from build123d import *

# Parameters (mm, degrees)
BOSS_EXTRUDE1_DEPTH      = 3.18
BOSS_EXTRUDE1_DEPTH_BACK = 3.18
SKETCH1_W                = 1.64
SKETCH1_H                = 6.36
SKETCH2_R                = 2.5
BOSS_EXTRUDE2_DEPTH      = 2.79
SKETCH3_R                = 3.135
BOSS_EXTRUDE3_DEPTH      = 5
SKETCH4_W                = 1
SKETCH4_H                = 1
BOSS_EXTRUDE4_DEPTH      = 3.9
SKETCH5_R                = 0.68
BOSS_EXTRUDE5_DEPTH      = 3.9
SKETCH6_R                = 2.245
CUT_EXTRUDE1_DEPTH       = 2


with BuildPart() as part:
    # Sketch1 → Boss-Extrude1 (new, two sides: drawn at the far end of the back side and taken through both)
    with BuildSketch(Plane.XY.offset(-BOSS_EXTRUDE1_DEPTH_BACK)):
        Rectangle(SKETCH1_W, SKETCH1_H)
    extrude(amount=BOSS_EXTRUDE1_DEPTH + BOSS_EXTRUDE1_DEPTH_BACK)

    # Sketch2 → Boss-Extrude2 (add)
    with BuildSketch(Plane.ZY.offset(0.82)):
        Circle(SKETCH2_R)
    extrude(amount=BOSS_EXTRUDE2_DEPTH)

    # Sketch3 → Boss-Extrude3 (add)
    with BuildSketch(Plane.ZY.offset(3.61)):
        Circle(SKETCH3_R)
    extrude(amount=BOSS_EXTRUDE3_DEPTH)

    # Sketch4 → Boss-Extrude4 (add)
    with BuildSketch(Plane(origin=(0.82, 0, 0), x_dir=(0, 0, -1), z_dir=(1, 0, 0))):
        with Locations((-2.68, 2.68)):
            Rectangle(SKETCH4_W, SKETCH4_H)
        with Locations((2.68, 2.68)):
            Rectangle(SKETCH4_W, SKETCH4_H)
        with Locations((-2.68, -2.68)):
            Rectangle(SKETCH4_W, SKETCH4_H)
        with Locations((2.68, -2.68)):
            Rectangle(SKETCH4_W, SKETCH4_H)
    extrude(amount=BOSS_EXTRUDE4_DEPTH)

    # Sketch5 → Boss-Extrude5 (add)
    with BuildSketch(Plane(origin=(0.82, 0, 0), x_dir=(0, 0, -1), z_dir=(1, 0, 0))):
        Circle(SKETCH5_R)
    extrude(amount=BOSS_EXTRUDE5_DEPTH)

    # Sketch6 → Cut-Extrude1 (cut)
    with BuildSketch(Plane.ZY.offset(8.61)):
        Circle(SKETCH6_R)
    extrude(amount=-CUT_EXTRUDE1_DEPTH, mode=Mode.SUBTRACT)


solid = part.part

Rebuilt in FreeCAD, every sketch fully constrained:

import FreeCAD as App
import Part
import Sketcher

V = App.Vector
Q = App.Units.Quantity

doc = App.newDocument("Part")
params = doc.addObject("Spreadsheet::Sheet", "Params")
for row, (alias, value) in enumerate([
    ("sketch1_width", "1.64 mm"),
    ("sketch1_height", "6.36 mm"),
    ("pad1_length", "3.18 mm"),
    ("pad1_length2", "3.18 mm"),
    ("sketch2_diameter", "5 mm"),
    ("pad2_length", "2.79 mm"),
    ("sketch3_diameter", "6.27 mm"),
    ("pad3_length", "5 mm"),
    ("sketch4_width", "1 mm"),
    ("pad4_length", "3.9 mm"),
    ("sketch5_diameter", "1.36 mm"),
    ("pad5_length", "3.9 mm"),
    ("sketch6_diameter", "4.49 mm"),
    ("pocket1_length", "2 mm"),
], start=1):
    params.set(f"A{row}", alias)
    params.set(f"B{row}", "=" + value)
    params.setAlias(f"B{row}", alias)

body = doc.addObject("PartDesign::Body", "Body")

sketch1 = body.newObject("Sketcher::SketchObject", "Sketch")
sketch1.AttachmentSupport = (doc.getObject("XY_Plane"), [""])
sketch1.MapMode = "FlatFace"
sketch1.addGeometry([
    Part.LineSegment(V(-0.82, 3.18, 0), V(-0.82, -3.18, 0)),
    Part.LineSegment(V(-0.82, -3.18, 0), V(0.82, -3.18, 0)),
    Part.LineSegment(V(0.82, -3.18, 0), V(0.82, 3.18, 0)),
    Part.LineSegment(V(0.82, 3.18, 0), V(-0.82, 3.18, 0)),
], False)
sketch1.addConstraint([
    Sketcher.Constraint("Coincident", 0, 2, 1, 1),
    Sketcher.Constraint("Coincident", 1, 2, 2, 1),
    Sketcher.Constraint("Coincident", 2, 2, 3, 1),
    Sketcher.Constraint("Coincident", 3, 2, 0, 1),
    Sketcher.Constraint("Vertical", 0),
    Sketcher.Constraint("Horizontal", 1),
    Sketcher.Constraint("Vertical", 2),
    Sketcher.Constraint("Horizontal", 3),
    Sketcher.Constraint("Symmetric", 0, 2, 2, 2, -1, 1),
    Sketcher.Constraint("DistanceX", 1, 1, 1, 2, Q("1.64 mm")),
    Sketcher.Constraint("DistanceY", 0, 2, 0, 1, Q("6.36 mm")),
])
sketch1.setExpression("Constraints[9]", "Params.sketch1_width")
sketch1.setExpression("Constraints[10]", "Params.sketch1_height")
pad1 = body.newObject("PartDesign::Pad", "Pad")
pad1.Profile = sketch1
pad1.Type = "TwoLengths"
pad1.setExpression("Length", "Params.pad1_length")
pad1.setExpression("Length2", "Params.pad1_length2")

sketch2 = body.newObject("Sketcher::SketchObject", "Sketch001")
sketch2.AttachmentSupport = (doc.getObject("YZ_Plane"), [""])
sketch2.MapMode = "FlatFace"
sketch2.AttachmentOffset = App.Placement(V(0, 0, -0.82), App.Rotation())
sketch2.addGeometry(Part.Circle(V(0, 0, 0), V(0, 0, 1), 2.5), False)
sketch2.addConstraint([
    Sketcher.Constraint("Coincident", 0, 3, -1, 1),
    Sketcher.Constraint("Diameter", 0, Q("5 mm")),
])
sketch2.setExpression("Constraints[1]", "Params.sketch2_diameter")
pad2 = body.newObject("PartDesign::Pad", "Pad001")
pad2.Profile = sketch2
pad2.setExpression("Length", "Params.pad2_length")
pad2.Reversed = True

sketch3 = body.newObject("Sketcher::SketchObject", "Sketch002")
sketch3.AttachmentSupport = (doc.getObject("YZ_Plane"), [""])
sketch3.MapMode = "FlatFace"
sketch3.AttachmentOffset = App.Placement(V(0, 0, -3.61), App.Rotation())
sketch3.addGeometry(Part.Circle(V(0, 0, 0), V(0, 0, 1), 3.135), False)
sketch3.addConstraint([
    Sketcher.Constraint("Coincident", 0, 3, -1, 1),
    Sketcher.Constraint("Diameter", 0, Q("6.27 mm")),
])
sketch3.setExpression("Constraints[1]", "Params.sketch3_diameter")
pad3 = body.newObject("PartDesign::Pad", "Pad002")
pad3.Profile = sketch3
pad3.setExpression("Length", "Params.pad3_length")
pad3.Reversed = True

sketch4 = body.newObject("Sketcher::SketchObject", "Sketch003")
sketch4.AttachmentSupport = (doc.getObject("YZ_Plane"), [""])
sketch4.MapMode = "FlatFace"
sketch4.AttachmentOffset = App.Placement(V(0, 0, 0.82), App.Rotation())
sketch4.addGeometry([
    Part.LineSegment(V(3.18, 3.18, 0), V(2.18, 3.18, 0)),
    Part.LineSegment(V(2.18, 3.18, 0), V(2.18, 2.18, 0)),
    Part.LineSegment(V(2.18, 2.18, 0), V(3.18, 2.18, 0)),
    Part.LineSegment(V(3.18, 2.18, 0), V(3.18, 3.18, 0)),
    Part.LineSegment(V(3.18, -2.18, 0), V(2.18, -2.18, 0)),
    Part.LineSegment(V(2.18, -2.18, 0), V(2.18, -3.18, 0)),
    Part.LineSegment(V(2.18, -3.18, 0), V(3.18, -3.18, 0)),
    Part.LineSegment(V(3.18, -3.18, 0), V(3.18, -2.18, 0)),
    Part.LineSegment(V(-2.18, 3.18, 0), V(-3.18, 3.18, 0)),
    Part.LineSegment(V(-3.18, 3.18, 0), V(-3.18, 2.18, 0)),
    Part.LineSegment(V(-3.18, 2.18, 0), V(-2.18, 2.18, 0)),
    Part.LineSegment(V(-2.18, 2.18, 0), V(-2.18, 3.18, 0)),
    Part.LineSegment(V(-2.18, -2.18, 0), V(-3.18, -2.18, 0)),
    Part.LineSegment(V(-3.18, -2.18, 0), V(-3.18, -3.18, 0)),
    Part.LineSegment(V(-3.18, -3.18, 0), V(-2.18, -3.18, 0)),
    Part.LineSegment(V(-2.18, -3.18, 0), V(-2.18, -2.18, 0)),
], False)
sketch4.addConstraint([
    Sketcher.Constraint("Coincident", 0, 2, 1, 1),
    Sketcher.Constraint("Coincident", 1, 2, 2, 1),
    Sketcher.Constraint("Coincident", 2, 2, 3, 1),
    Sketcher.Constraint("Coincident", 3, 2, 0, 1),
    Sketcher.Constraint("Coincident", 4, 2, 5, 1),
    Sketcher.Constraint("Coincident", 5, 2, 6, 1),
    Sketcher.Constraint("Coincident", 6, 2, 7, 1),
    Sketcher.Constraint("Coincident", 7, 2, 4, 1),
    Sketcher.Constraint("Coincident", 8, 2, 9, 1),
    Sketcher.Constraint("Coincident", 9, 2, 10, 1),
    Sketcher.Constraint("Coincident", 10, 2, 11, 1),
    Sketcher.Constraint("Coincident", 11, 2, 8, 1),
    Sketcher.Constraint("Coincident", 12, 2, 13, 1),
    Sketcher.Constraint("Coincident", 13, 2, 14, 1),
    Sketcher.Constraint("Coincident", 14, 2, 15, 1),
    Sketcher.Constraint("Coincident", 15, 2, 12, 1),
    Sketcher.Constraint("Horizontal", 0),
    Sketcher.Constraint("Vertical", 1),
    Sketcher.Constraint("Horizontal", 2),
    Sketcher.Constraint("Vertical", 3),
    Sketcher.Constraint("Horizontal", 4),
    Sketcher.Constraint("Vertical", 5),
    Sketcher.Constraint("Horizontal", 6),
    Sketcher.Constraint("Vertical", 7),
    Sketcher.Constraint("Horizontal", 8),
    Sketcher.Constraint("Vertical", 9),
    Sketcher.Constraint("Horizontal", 10),
    Sketcher.Constraint("Vertical", 11),
    Sketcher.Constraint("Horizontal", 12),
    Sketcher.Constraint("Vertical", 13),
    Sketcher.Constraint("Horizontal", 14),
    Sketcher.Constraint("Vertical", 15),
    Sketcher.Constraint("Symmetric", 6, 2, 8, 2, -1, 1),
    Sketcher.Constraint("Symmetric", 4, 2, 10, 2, -1, 1),
    Sketcher.Constraint("Symmetric", 2, 2, 12, 2, -1, 1),
    Sketcher.Constraint("Symmetric", 0, 2, 14, 2, -1, 1),
    Sketcher.Constraint("Symmetric", 3, 2, 8, 2, -2),
    Sketcher.Constraint("Symmetric", 1, 2, 10, 2, -2),
    Sketcher.Constraint("Equal", 14, 1),
    Sketcher.Constraint("DistanceX", 0, 2, 0, 1, Q("1 mm")),
    Sketcher.Constraint("DistanceX", -1, 1, 0, 2, Q("2.18 mm")),
    Sketcher.Constraint("DistanceY", -1, 1, 0, 2, Q("3.18 mm")),
])
sketch4.setExpression("Constraints[39]", "Params.sketch4_width")
pad4 = body.newObject("PartDesign::Pad", "Pad003")
pad4.Profile = sketch4
pad4.setExpression("Length", "Params.pad4_length")

sketch5 = body.newObject("Sketcher::SketchObject", "Sketch004")
sketch5.AttachmentSupport = (doc.getObject("YZ_Plane"), [""])
sketch5.MapMode = "FlatFace"
sketch5.AttachmentOffset = App.Placement(V(0, 0, 0.82), App.Rotation())
sketch5.addGeometry(Part.Circle(V(0, 0, 0), V(0, 0, 1), 0.68), False)
sketch5.addConstraint([
    Sketcher.Constraint("Coincident", 0, 3, -1, 1),
    Sketcher.Constraint("Diameter", 0, Q("1.36 mm")),
])
sketch5.setExpression("Constraints[1]", "Params.sketch5_diameter")
pad5 = body.newObject("PartDesign::Pad", "Pad004")
pad5.Profile = sketch5
pad5.setExpression("Length", "Params.pad5_length")

sketch6 = body.newObject("Sketcher::SketchObject", "Sketch005")
sketch6.AttachmentSupport = (doc.getObject("YZ_Plane"), [""])
sketch6.MapMode = "FlatFace"
sketch6.AttachmentOffset = App.Placement(V(0, 0, -8.61), App.Rotation())
sketch6.addGeometry(Part.Circle(V(0, 0, 0), V(0, 0, 1), 2.245), False)
sketch6.addConstraint([
    Sketcher.Constraint("Coincident", 0, 3, -1, 1),
    Sketcher.Constraint("Diameter", 0, Q("4.49 mm")),
])
sketch6.setExpression("Constraints[1]", "Params.sketch6_diameter")
pocket1 = body.newObject("PartDesign::Pocket", "Pocket")
pocket1.Profile = sketch6
pocket1.setExpression("Length", "Params.pocket1_length")
pocket1.Reversed = True

doc.recompute()
